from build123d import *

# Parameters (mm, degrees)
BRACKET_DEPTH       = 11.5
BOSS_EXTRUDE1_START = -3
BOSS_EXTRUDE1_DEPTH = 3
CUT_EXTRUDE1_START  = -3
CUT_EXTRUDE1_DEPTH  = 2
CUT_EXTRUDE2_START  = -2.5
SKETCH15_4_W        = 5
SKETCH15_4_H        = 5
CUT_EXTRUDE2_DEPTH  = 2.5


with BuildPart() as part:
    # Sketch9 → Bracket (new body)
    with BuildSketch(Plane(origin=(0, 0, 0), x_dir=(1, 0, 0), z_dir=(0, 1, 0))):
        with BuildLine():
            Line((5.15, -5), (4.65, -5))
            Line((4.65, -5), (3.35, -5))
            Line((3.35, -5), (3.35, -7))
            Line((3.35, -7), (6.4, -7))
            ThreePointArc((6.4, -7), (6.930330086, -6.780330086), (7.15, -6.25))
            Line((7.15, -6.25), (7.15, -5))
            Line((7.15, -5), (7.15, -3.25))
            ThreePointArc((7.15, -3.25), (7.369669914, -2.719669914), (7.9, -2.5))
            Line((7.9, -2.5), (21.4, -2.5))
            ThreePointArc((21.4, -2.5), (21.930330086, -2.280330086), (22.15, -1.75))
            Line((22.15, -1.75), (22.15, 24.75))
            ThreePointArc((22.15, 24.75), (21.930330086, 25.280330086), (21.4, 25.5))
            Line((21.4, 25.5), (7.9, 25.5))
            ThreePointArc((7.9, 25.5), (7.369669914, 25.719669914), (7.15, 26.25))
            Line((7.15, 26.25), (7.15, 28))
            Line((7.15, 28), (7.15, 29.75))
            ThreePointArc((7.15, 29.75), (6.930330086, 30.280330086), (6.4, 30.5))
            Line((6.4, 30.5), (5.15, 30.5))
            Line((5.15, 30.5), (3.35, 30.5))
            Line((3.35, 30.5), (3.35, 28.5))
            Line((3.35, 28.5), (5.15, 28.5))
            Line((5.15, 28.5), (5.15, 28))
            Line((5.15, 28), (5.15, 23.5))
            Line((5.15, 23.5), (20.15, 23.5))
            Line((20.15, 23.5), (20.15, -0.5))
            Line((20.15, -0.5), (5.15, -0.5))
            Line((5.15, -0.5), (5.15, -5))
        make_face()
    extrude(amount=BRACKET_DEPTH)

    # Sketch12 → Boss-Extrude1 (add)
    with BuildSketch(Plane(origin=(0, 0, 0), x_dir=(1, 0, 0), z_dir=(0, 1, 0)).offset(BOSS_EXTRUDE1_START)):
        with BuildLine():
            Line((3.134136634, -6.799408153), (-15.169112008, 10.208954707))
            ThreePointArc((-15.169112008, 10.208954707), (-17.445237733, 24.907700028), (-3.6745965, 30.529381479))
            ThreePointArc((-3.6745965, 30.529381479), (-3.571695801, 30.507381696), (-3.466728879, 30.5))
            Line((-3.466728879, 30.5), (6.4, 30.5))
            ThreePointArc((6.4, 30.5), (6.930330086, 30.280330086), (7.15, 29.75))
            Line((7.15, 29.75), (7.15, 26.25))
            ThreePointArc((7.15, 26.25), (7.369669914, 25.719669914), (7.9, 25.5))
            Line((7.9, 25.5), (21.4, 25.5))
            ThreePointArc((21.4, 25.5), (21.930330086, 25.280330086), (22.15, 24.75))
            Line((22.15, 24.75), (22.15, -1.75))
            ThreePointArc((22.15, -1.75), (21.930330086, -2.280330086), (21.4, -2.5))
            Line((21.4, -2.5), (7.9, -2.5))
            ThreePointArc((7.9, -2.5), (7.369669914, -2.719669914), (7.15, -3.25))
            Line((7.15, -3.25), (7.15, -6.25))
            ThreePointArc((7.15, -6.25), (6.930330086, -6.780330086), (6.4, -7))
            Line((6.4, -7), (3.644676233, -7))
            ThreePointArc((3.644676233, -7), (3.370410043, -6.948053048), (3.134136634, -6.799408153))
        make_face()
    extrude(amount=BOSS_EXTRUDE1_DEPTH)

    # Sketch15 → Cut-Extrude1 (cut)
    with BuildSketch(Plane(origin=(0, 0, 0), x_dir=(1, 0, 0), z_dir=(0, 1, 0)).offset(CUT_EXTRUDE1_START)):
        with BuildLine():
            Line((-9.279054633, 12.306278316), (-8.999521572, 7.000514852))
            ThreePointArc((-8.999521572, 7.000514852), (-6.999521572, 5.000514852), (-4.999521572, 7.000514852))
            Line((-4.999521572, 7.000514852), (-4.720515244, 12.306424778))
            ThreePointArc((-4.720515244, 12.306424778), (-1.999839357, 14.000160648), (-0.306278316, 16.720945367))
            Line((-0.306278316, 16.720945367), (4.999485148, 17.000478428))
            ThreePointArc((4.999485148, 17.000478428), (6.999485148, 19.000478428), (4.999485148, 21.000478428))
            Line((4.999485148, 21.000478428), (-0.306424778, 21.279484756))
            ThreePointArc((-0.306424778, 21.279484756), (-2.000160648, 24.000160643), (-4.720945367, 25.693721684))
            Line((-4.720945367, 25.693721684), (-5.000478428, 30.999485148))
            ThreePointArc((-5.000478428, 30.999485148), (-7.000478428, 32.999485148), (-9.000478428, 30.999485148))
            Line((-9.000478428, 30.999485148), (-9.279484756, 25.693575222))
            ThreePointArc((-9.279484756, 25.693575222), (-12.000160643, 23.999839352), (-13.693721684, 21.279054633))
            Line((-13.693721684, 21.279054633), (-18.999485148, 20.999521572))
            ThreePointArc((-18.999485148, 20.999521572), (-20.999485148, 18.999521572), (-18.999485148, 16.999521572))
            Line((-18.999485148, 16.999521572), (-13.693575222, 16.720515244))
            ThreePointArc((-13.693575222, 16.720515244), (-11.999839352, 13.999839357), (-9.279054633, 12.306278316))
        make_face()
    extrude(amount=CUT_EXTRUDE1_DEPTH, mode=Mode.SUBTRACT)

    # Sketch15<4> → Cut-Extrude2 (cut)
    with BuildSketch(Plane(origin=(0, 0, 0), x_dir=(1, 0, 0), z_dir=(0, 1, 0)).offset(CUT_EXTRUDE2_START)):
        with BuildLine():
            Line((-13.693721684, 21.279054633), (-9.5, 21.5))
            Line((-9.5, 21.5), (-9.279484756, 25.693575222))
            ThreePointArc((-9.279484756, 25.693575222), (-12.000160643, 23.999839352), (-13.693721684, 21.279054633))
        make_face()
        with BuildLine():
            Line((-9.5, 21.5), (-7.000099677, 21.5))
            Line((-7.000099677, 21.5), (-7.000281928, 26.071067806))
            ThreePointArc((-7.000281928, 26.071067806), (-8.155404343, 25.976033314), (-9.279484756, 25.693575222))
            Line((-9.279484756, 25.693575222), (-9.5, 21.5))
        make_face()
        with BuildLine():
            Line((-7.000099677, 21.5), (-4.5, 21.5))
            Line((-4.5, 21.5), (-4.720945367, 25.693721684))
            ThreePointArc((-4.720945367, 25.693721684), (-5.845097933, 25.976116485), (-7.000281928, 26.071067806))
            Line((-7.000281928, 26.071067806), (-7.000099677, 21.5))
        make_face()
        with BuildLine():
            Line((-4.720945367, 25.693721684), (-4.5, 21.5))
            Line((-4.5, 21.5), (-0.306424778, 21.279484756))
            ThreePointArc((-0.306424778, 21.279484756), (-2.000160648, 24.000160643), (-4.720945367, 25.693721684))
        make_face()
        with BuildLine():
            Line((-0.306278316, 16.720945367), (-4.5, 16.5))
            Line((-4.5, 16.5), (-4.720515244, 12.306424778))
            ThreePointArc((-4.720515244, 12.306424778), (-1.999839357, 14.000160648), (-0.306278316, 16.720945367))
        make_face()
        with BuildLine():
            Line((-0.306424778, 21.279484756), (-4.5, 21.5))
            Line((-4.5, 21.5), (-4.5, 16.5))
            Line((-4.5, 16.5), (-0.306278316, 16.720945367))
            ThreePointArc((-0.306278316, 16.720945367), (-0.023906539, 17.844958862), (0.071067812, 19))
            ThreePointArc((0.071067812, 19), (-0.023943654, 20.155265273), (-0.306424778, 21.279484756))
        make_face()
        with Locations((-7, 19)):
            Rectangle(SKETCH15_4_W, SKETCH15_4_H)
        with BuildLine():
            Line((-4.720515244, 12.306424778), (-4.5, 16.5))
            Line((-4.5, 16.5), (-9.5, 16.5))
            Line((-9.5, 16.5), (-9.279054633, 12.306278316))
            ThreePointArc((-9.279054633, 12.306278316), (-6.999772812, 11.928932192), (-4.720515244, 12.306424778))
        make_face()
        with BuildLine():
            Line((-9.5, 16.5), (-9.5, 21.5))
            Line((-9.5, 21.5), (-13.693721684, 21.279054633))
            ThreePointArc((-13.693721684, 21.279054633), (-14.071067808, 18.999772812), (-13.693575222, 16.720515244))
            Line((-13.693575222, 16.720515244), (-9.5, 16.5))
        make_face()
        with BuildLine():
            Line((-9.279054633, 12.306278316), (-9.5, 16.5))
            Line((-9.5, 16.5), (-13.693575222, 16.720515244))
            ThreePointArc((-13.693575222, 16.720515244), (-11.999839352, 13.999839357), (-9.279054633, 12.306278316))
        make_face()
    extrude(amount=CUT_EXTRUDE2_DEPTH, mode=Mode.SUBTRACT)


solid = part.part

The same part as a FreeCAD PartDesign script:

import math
import FreeCAD as App
import Part
import Sketcher

doc = App.newDocument("Part")
body = doc.addObject("PartDesign::Body", "Body")

sketch1 = body.newObject("Sketcher::SketchObject", "Sketch")
sketch1.AttachmentSupport = (doc.getObject("XZ_Plane"), [""])
sketch1.MapMode = "FlatFace"
sketch1.addGeometry([
    Part.LineSegment(App.Vector(5.15, 5, 0), App.Vector(3.35, 5, 0)),
    Part.LineSegment(App.Vector(3.35, 5, 0), App.Vector(3.35, 7, 0)),
    Part.LineSegment(App.Vector(3.35, 7, 0), App.Vector(6.4, 7, 0)),
    Part.ArcOfCircle(Part.Circle(App.Vector(6.4, 6.25, 0), App.Vector(0, 0, 1), 0.75), math.radians(0), math.radians(90)),
    Part.LineSegment(App.Vector(7.15, 6.25, 0), App.Vector(7.15, 3.25, 0)),
    Part.ArcOfCircle(Part.Circle(App.Vector(7.9, 3.25, 0), App.Vector(0, 0, 1), 0.75), math.radians(180), math.radians(270)),
    Part.LineSegment(App.Vector(7.9, 2.5, 0), App.Vector(21.4, 2.5, 0)),
    Part.ArcOfCircle(Part.Circle(App.Vector(21.4, 1.75, 0), App.Vector(0, 0, 1), 0.75), math.radians(0), math.radians(90)),
    Part.LineSegment(App.Vector(22.15, 1.75, 0), App.Vector(22.15, -24.75, 0)),
    Part.ArcOfCircle(Part.Circle(App.Vector(21.4, -24.75, 0), App.Vector(0, 0, 1), 0.75), math.radians(-90), math.radians(0)),
    Part.LineSegment(App.Vector(21.4, -25.5, 0), App.Vector(7.9, -25.5, 0)),
    Part.ArcOfCircle(Part.Circle(App.Vector(7.9, -26.25, 0), App.Vector(0, 0, 1), 0.75), math.radians(90), math.radians(180)),
    Part.LineSegment(App.Vector(7.15, -26.25, 0), App.Vector(7.15, -29.75, 0)),
    Part.ArcOfCircle(Part.Circle(App.Vector(6.4, -29.75, 0), App.Vector(0, 0, 1), 0.75), math.radians(-90), math.radians(0)),
    Part.LineSegment(App.Vector(6.4, -30.5, 0), App.Vector(3.35, -30.5, 0)),
    Part.LineSegment(App.Vector(3.35, -30.5, 0), App.Vector(3.35, -28.5, 0)),
    Part.LineSegment(App.Vector(3.35, -28.5, 0), App.Vector(5.15, -28.5, 0)),
    Part.LineSegment(App.Vector(5.15, -28.5, 0), App.Vector(5.15, -23.5, 0)),
    Part.LineSegment(App.Vector(5.15, -23.5, 0), App.Vector(20.15, -23.5, 0)),
    Part.LineSegment(App.Vector(20.15, -23.5, 0), App.Vector(20.15, 0.5, 0)),
    Part.LineSegment(App.Vector(20.15, 0.5, 0), App.Vector(5.15, 0.5, 0)),
    Part.LineSegment(App.Vector(5.15, 0.5, 0), App.Vector(5.15, 5, 0)),
], False)
sketch1.addConstraint([
    Sketcher.Constraint("Coincident", 0, 2, 1, 1),
    Sketcher.Constraint("Coincident", 1, 2, 2, 1),
    Sketcher.Constraint("Tangent", 2, 2, 3, 2),
    Sketcher.Constraint("Tangent", 3, 1, 4, 1),
    Sketcher.Constraint("Tangent", 4, 2, 5, 1),
    Sketcher.Constraint("Tangent", 5, 2, 6, 1),
    Sketcher.Constraint("Tangent", 6, 2, 7, 2),
    Sketcher.Constraint("Tangent", 7, 1, 8, 1),
    Sketcher.Constraint("Tangent", 8, 2, 9, 2),
    Sketcher.Constraint("Tangent", 9, 1, 10, 1),
    Sketcher.Constraint("Tangent", 10, 2, 11, 1),
    Sketcher.Constraint("Tangent", 11, 2, 12, 1),
    Sketcher.Constraint("Tangent", 12, 2, 13, 2),
    Sketcher.Constraint("Tangent", 13, 1, 14, 1),
    Sketcher.Constraint("Coincident", 14, 2, 15, 1),
    Sketcher.Constraint("Coincident", 15, 2, 16, 1),
    Sketcher.Constraint("Coincident", 16, 2, 17, 1),
    Sketcher.Constraint("Coincident", 17, 2, 18, 1),
    Sketcher.Constraint("Coincident", 18, 2, 19, 1),
    Sketcher.Constraint("Coincident", 19, 2, 20, 1),
    Sketcher.Constraint("Coincident", 20, 2, 21, 1),
    Sketcher.Constraint("Coincident", 21, 2, 0, 1),
    Sketcher.Constraint("Horizontal", 0),
    Sketcher.Constraint("Vertical", 1),
    Sketcher.Constraint("Horizontal", 2),
    Sketcher.Constraint("Vertical", 4),
    Sketcher.Constraint("Horizontal", 6),
    Sketcher.Constraint("Vertical", 8),
    Sketcher.Constraint("Horizontal", 10),
    Sketcher.Constraint("Vertical", 12),
    Sketcher.Constraint("Horizontal", 14),
    Sketcher.Constraint("Vertical", 15),
    Sketcher.Constraint("Horizontal", 16),
    Sketcher.Constraint("Vertical", 17),
    Sketcher.Constraint("Horizontal", 18),
    Sketcher.Constraint("Vertical", 19),
    Sketcher.Constraint("Horizontal", 20),
    Sketcher.Constraint("Vertical", 21),
    Sketcher.Constraint("Equal", 3, 5),
    Sketcher.Constraint("Equal", 5, 7),
    Sketcher.Constraint("Equal", 7, 9),
    Sketcher.Constraint("Equal", 9, 11),
    Sketcher.Constraint("Equal", 11, 13),
    Sketcher.Constraint("Vertical", 5, 3, 11, 3),
    Sketcher.Constraint("Vertical", 1, 2, 14, 2),
    Sketcher.Constraint("Vertical", 17, 2, 20, 2),
    Sketcher.Constraint("Equal", 1, 15),
    Sketcher.Constraint("DistanceX", 18, 1, 18, 2, 15.0),
    Sketcher.Constraint("DistanceY", 1, 1, 1, 2, 2.0),
    Sketcher.Constraint("DistanceY", 4, 2, 4, 1, 3.0),
    Sketcher.Constraint("DistanceY", 17, 1, 17, 2, 5.0),
    Sketcher.Constraint("DistanceY", 19, 1, 19, 2, 24.0),
    Sketcher.Constraint("Radius", 3, 0.75),
    Sketcher.Constraint("DistanceX", 0, 2, 0, 1, 1.8),
    Sketcher.Constraint("DistanceX", 6, 1, 6, 2, 13.5),
    Sketcher.Constraint("DistanceY", 8, 2, 8, 1, 26.5),
    Sketcher.Constraint("DistanceY", 12, 2, 12, 1, 3.5),
    Sketcher.Constraint("DistanceY", -1, 1, 0, 2, 5.0),
    Sketcher.Constraint("DistanceX", 16, 2, 12, 2, 2.0),
    Sketcher.Constraint("DistanceX", -1, 1, 3, 3, 6.4),
])
pad1 = body.newObject("PartDesign::Pad", "Pad")
pad1.Profile = sketch1
pad1.Length = 11.5
pad1.Reversed = True

sketch2 = body.newObject("Sketcher::SketchObject", "Sketch001")
sketch2.AttachmentSupport = (doc.getObject("XZ_Plane"), [""])
sketch2.MapMode = "FlatFace"
sketch2.AttachmentOffset = App.Placement(App.Vector(0, 0, 3), App.Rotation())
sketch2.addGeometry([
    Part.LineSegment(App.Vector(-15.169112, -10.208955, 0), App.Vector(3.134137, 6.799408, 0)),
    Part.ArcOfCircle(Part.Circle(App.Vector(3.644676, 6.25, 0), App.Vector(0, 0, 1), 0.75), math.radians(90), math.radians(132.89989)),
    Part.LineSegment(App.Vector(3.644676, 7, 0), App.Vector(6.4, 7, 0)),
    Part.ArcOfCircle(Part.Circle(App.Vector(6.4, 6.25, 0), App.Vector(0, 0, 1), 0.75), math.radians(0), math.radians(90)),
    Part.LineSegment(App.Vector(7.15, 6.25, 0), App.Vector(7.15, 3.25, 0)),
    Part.ArcOfCircle(Part.Circle(App.Vector(7.9, 3.25, 0), App.Vector(0, 0, 1), 0.75), math.radians(180), math.radians(270)),
    Part.LineSegment(App.Vector(7.9, 2.5, 0), App.Vector(21.4, 2.5, 0)),
    Part.ArcOfCircle(Part.Circle(App.Vector(21.4, 1.75, 0), App.Vector(0, 0, 1), 0.75), math.radians(0), math.radians(90)),
    Part.LineSegment(App.Vector(22.15, 1.75, 0), App.Vector(22.15, -24.75, 0)),
    Part.ArcOfCircle(Part.Circle(App.Vector(21.4, -24.75, 0), App.Vector(0, 0, 1), 0.75), math.radians(-90), math.radians(0)),
    Part.LineSegment(App.Vector(21.4, -25.5, 0), App.Vector(7.9, -25.5, 0)),
    Part.ArcOfCircle(Part.Circle(App.Vector(7.9, -26.25, 0), App.Vector(0, 0, 1), 0.75), math.radians(90), math.radians(180)),
    Part.LineSegment(App.Vector(7.15, -26.25, 0), App.Vector(7.15, -29.75, 0)),
    Part.ArcOfCircle(Part.Circle(App.Vector(6.4, -29.75, 0), App.Vector(0, 0, 1), 0.75), math.radians(-90), math.radians(0)),
    Part.LineSegment(App.Vector(6.4, -30.5, 0), App.Vector(-3.466729, -30.5, 0)),
    Part.ArcOfCircle(Part.Circle(App.Vector(-3.466729, -31.25, 0), App.Vector(0, 0, 1), 0.75), math.radians(90), math.radians(106.090588)),
    Part.ArcOfCircle(Part.Circle(App.Vector(-7.000478, -18.999485, 0), App.Vector(0, 0, 1), 12), math.radians(132.89989), math.radians(286.090588)),
], False)
sketch2.addConstraint([
    Sketcher.Constraint("Tangent", 0, 2, 1, 2),
    Sketcher.Constraint("Tangent", 1, 1, 2, 1),
    Sketcher.Constraint("Tangent", 2, 2, 3, 2),
    Sketcher.Constraint("Tangent", 3, 1, 4, 1),
    Sketcher.Constraint("Tangent", 4, 2, 5, 1),
    Sketcher.Constraint("Tangent", 5, 2, 6, 1),
    Sketcher.Constraint("Tangent", 6, 2, 7, 2),
    Sketcher.Constraint("Tangent", 7, 1, 8, 1),
    Sketcher.Constraint("Tangent", 8, 2, 9, 2),
    Sketcher.Constraint("Tangent", 9, 1, 10, 1),
    Sketcher.Constraint("Tangent", 10, 2, 11, 1),
    Sketcher.Constraint("Tangent", 11, 2, 12, 1),
    Sketcher.Constraint("Tangent", 12, 2, 13, 2),
    Sketcher.Constraint("Tangent", 13, 1, 14, 1),
    Sketcher.Constraint("Tangent", 14, 2, 15, 1),
    Sketcher.Constraint("Tangent", 15, 2, 16, 2),
    Sketcher.Constraint("Tangent", 16, 1, 0, 1),
    Sketcher.Constraint("Horizontal", 2),
    Sketcher.Constraint("Vertical", 4),
    Sketcher.Constraint("Horizontal", 6),
    Sketcher.Constraint("Vertical", 8),
    Sketcher.Constraint("Horizontal", 10),
    Sketcher.Constraint("Vertical", 12),
    Sketcher.Constraint("Horizontal", 14),
    Sketcher.Constraint("Equal", 1, 3),
    Sketcher.Constraint("Equal", 3, 5),
    Sketcher.Constraint("Equal", 5, 7),
    Sketcher.Constraint("Equal", 7, 9),
    Sketcher.Constraint("Equal", 9, 11),
    Sketcher.Constraint("Equal", 11, 13),
    Sketcher.Constraint("Equal", 13, 15),
    Sketcher.Constraint("Vertical", 5, 3, 11, 3),
    Sketcher.Constraint("Radius", 16, 12.0),
    Sketcher.Constraint("DistanceY", 4, 2, 4, 1, 3.0),
    Sketcher.Constraint("Radius", 1, 0.75),
    Sketcher.Constraint("DistanceX", 6, 1, 6, 2, 13.5),
    Sketcher.Constraint("DistanceY", 8, 2, 8, 1, 26.5),
    Sketcher.Constraint("DistanceY", 12, 2, 12, 1, 3.5),
    Sketcher.Constraint("DistanceY", -1, 1, 1, 1, 7.0),
    Sketcher.Constraint("DistanceX", -1, 1, 3, 3, 6.4),
    Sketcher.Constraint("DistanceX", 14, 2, 14, 1, 9.866729),
    Sketcher.Constraint("DistanceX", 2, 1, 2, 2, 2.755324),
    Sketcher.Constraint("DistanceX", 16, 3, -1, 1, 7.000478),
])
pad2 = body.newObject("PartDesign::Pad", "Pad001")
pad2.Profile = sketch2
pad2.Length = 3
pad2.Reversed = True

sketch3 = body.newObject("Sketcher::SketchObject", "Sketch002")
sketch3.AttachmentSupport = (doc.getObject("XZ_Plane"), [""])
sketch3.MapMode = "FlatFace"
sketch3.AttachmentOffset = App.Placement(App.Vector(0, 0, 3), App.Rotation())
sketch3.addGeometry([
    Part.LineSegment(App.Vector(-9.279055, -12.306278, 0), App.Vector(-8.999522, -7.000515, 0)),
    Part.ArcOfCircle(Part.Circle(App.Vector(-6.999522, -7.000515, 0), App.Vector(0, 0, 1), 2), math.radians(0), math.radians(180)),
    Part.LineSegment(App.Vector(-4.999522, -7.000515, 0), App.Vector(-4.720515, -12.306425, 0)),
    Part.ArcOfCircle(Part.Circle(App.Vector(-7, -19, 0), App.Vector(0, 0, 1), 7.071068), math.radians(18.8025), math.radians(71.193818)),
    Part.LineSegment(App.Vector(-0.306278, -16.720945, 0), App.Vector(4.999485, -17.000478, 0)),
    Part.ArcOfCircle(Part.Circle(App.Vector(4.999485, -19.000478, 0), App.Vector(0, 0, 1), 2), math.radians(-90), math.radians(90)),
    Part.LineSegment(App.Vector(4.999485, -21.000478, 0), App.Vector(-0.306425, -21.279485, 0)),
    Part.ArcOfCircle(Part.Circle(App.Vector(-7, -19, 0), App.Vector(0, 0, 1), 7.071068), math.radians(-71.1975), math.radians(-18.806182)),
    Part.LineSegment(App.Vector(-4.720945, -25.693722, 0), App.Vector(-5.000478, -30.999485, 0)),
    Part.ArcOfCircle(Part.Circle(App.Vector(-7.000478, -30.999485, 0), App.Vector(0, 0, 1), 2), math.radians(180), math.radians(360)),
    Part.LineSegment(App.Vector(-9.000478, -30.999485, 0), App.Vector(-9.279485, -25.693575, 0)),
    Part.ArcOfCircle(Part.Circle(App.Vector(-7, -19, 0), App.Vector(0, 0, 1), 7.071068), math.radians(-161.1975), math.radians(-108.806182)),
    Part.LineSegment(App.Vector(-13.693722, -21.279055, 0), App.Vector(-18.999485, -20.999522, 0)),
    Part.ArcOfCircle(Part.Circle(App.Vector(-18.999485, -18.999522, 0), App.Vector(0, 0, 1), 2), math.radians(90), math.radians(270)),
    Part.LineSegment(App.Vector(-18.999485, -16.999522, 0), App.Vector(-13.693575, -16.720515, 0)),
    Part.ArcOfCircle(Part.Circle(App.Vector(-7, -19, 0), App.Vector(0, 0, 1), 7.071068), math.radians(108.8025), math.radians(161.193818)),
], False)
sketch3.addConstraint([
    Sketcher.Constraint("Coincident", 0, 2, 1, 2),
    Sketcher.Constraint("Coincident", 1, 1, 2, 1),
    Sketcher.Constraint("Coincident", 2, 2, 3, 2),
    Sketcher.Constraint("Coincident", 3, 1, 4, 1),
    Sketcher.Constraint("Coincident", 4, 2, 5, 2),
    Sketcher.Constraint("Coincident", 5, 1, 6, 1),
    Sketcher.Constraint("Coincident", 6, 2, 7, 2),
    Sketcher.Constraint("Coincident", 7, 1, 8, 1),
    Sketcher.Constraint("Coincident", 8, 2, 9, 2),
    Sketcher.Constraint("Coincident", 9, 1, 10, 1),
    Sketcher.Constraint("Coincident", 10, 2, 11, 2),
    Sketcher.Constraint("Coincident", 11, 1, 12, 1),
    Sketcher.Constraint("Coincident", 12, 2, 13, 2),
    Sketcher.Constraint("Coincident", 13, 1, 14, 1),
    Sketcher.Constraint("Coincident", 14, 2, 15, 2),
    Sketcher.Constraint("Coincident", 15, 1, 0, 1),
    Sketcher.Constraint("Coincident", 7, 3, 3, 3),
    Sketcher.Constraint("Coincident", 11, 3, 3, 3),
    Sketcher.Constraint("Coincident", 15, 3, 3, 3),
    Sketcher.Constraint("Equal", 1, 5),
    Sketcher.Constraint("Equal", 3, 7),
    Sketcher.Constraint("Equal", 5, 9),
    Sketcher.Constraint("Equal", 7, 11),
    Sketcher.Constraint("Equal", 9, 13),
    Sketcher.Constraint("Equal", 11, 15),
    Sketcher.Constraint("Perpendicular", 0, 4),
    Sketcher.Constraint("Perpendicular", 2, 6),
    Sketcher.Constraint("Perpendicular", 4, 8),
    Sketcher.Constraint("Perpendicular", 6, 10),
    Sketcher.Constraint("Perpendicular", 8, 12),
    Sketcher.Constraint("Perpendicular", 10, 14),
    Sketcher.Constraint("Horizontal", 1, 3, 0, 2),
    Sketcher.Constraint("Horizontal", 0, 2, 1, 1),
    Sketcher.Constraint("Horizontal", 9, 3, 8, 2),
    Sketcher.Constraint("Horizontal", 8, 2, 9, 1),
    Sketcher.Constraint("Vertical", 5, 3, 4, 2),
    Sketcher.Constraint("Vertical", 4, 2, 5, 1),
    Sketcher.Constraint("Vertical", 13, 3, 12, 2),
    Sketcher.Constraint("Vertical", 12, 2, 13, 1),
    Sketcher.Constraint("Equal", 0, 4),
    Sketcher.Constraint("Equal", 2, 6),
    Sketcher.Constraint("Equal", 4, 8),
    Sketcher.Constraint("Equal", 6, 10),
    Sketcher.Constraint("Equal", 8, 12),
    Sketcher.Constraint("Equal", 10, 14),
    Sketcher.Constraint("Radius", 1, 2.0),
    Sketcher.Constraint("DistanceX", 3, 3, -1, 1, 7.0),
    Sketcher.Constraint("DistanceY", 3, 3, -1, 1, 19.0),
    Sketcher.Constraint("DistanceX", 2, 2, 4, 2, 9.72),
    Sketcher.Constraint("Radius", 3, 7.071068),
    Sketcher.Constraint("Distance", 0, 5.313122),
    Sketcher.Constraint("Distance", 2, 5.313241),
    Sketcher.Constraint("DistanceX", 1, 3, -1, 1, 6.999522),
])
pocket1 = body.newObject("PartDesign::Pocket", "Pocket")
pocket1.Profile = sketch3
pocket1.Length = 2

sketch4 = body.newObject("Sketcher::SketchObject", "Sketch003")
sketch4.AttachmentSupport = (doc.getObject("XZ_Plane"), [""])
sketch4.MapMode = "FlatFace"
sketch4.AttachmentOffset = App.Placement(App.Vector(0, 0, 2.5), App.Rotation())
sketch4.addGeometry([
    Part.ArcOfCircle(Part.Circle(App.Vector(-7, -19, 0), App.Vector(0, 0, 1), 7.071068), math.radians(71.193818), math.radians(108.8025)),
    Part.ArcOfCircle(Part.Circle(App.Vector(-7, -19, 0), App.Vector(0, 0, 1), 7.071068), math.radians(18.8025), math.radians(71.193818)),
    Part.ArcOfCircle(Part.Circle(App.Vector(-7, -19, 0), App.Vector(0, 0, 1), 7.071068), math.radians(0), math.radians(18.8025)),
    Part.ArcOfCircle(Part.Circle(App.Vector(-7, -19, 0), App.Vector(0, 0, 1), 7.071068), math.radians(-18.806181), math.radians(0)),
    Part.ArcOfCircle(Part.Circle(App.Vector(-7, -19, 0), App.Vector(0, 0, 1), 7.071068), math.radians(-71.1975), math.radians(-18.806182)),
    Part.ArcOfCircle(Part.Circle(App.Vector(-7, -19, 0), App.Vector(0, 0, 1), 7.071068), math.radians(-90.002284), math.radians(-71.1975)),
    Part.ArcOfCircle(Part.Circle(App.Vector(-7, -19, 0), App.Vector(0, 0, 1), 7.071068), math.radians(-108.806181), math.radians(-90.002284)),
    Part.ArcOfCircle(Part.Circle(App.Vector(-7, -19, 0), App.Vector(0, 0, 1), 7.071068), math.radians(-161.1975), math.radians(-108.806182)),
    Part.ArcOfCircle(Part.Circle(App.Vector(-7, -19, 0), App.Vector(0, 0, 1), 7.071068), math.radians(161.193818), math.radians(198.8025)),
    Part.ArcOfCircle(Part.Circle(App.Vector(-7, -19, 0), App.Vector(0, 0, 1), 7.071068), math.radians(108.8025), math.radians(161.193818)),
], False)
sketch4.addConstraint([
    Sketcher.Constraint("Tangent", 0, 1, 1, 2),
    Sketcher.Constraint("Tangent", 1, 1, 2, 2),
    Sketcher.Constraint("Tangent", 2, 1, 3, 2),
    Sketcher.Constraint("Tangent", 3, 1, 4, 2),
    Sketcher.Constraint("Tangent", 4, 1, 5, 2),
    Sketcher.Constraint("Tangent", 5, 1, 6, 2),
    Sketcher.Constraint("Tangent", 6, 1, 7, 2),
    Sketcher.Constraint("Tangent", 7, 1, 8, 2),
    Sketcher.Constraint("Tangent", 8, 1, 9, 2),
    Sketcher.Constraint("Tangent", 9, 1, 0, 2),
    Sketcher.Constraint("Coincident", 2, 3, 0, 3),
    Sketcher.Constraint("Coincident", 4, 3, 0, 3),
    Sketcher.Constraint("Coincident", 6, 3, 0, 3),
    Sketcher.Constraint("Equal", 6, 7),
    Sketcher.Constraint("Horizontal", 9, 3, 2, 1),
    Sketcher.Constraint("DistanceX", 0, 3, -1, 1, 7.0),
    Sketcher.Constraint("DistanceY", 0, 3, -1, 1, 19.0),
    Sketcher.Constraint("Radius", 0, 7.071068),
    Sketcher.Constraint("DistanceX", 1, 1, -1, 1, 0.306278),
    Sketcher.Constraint("DistanceY", 4, 1, -1, 1, 25.693722),
    Sketcher.Constraint("DistanceX", 5, 1, -1, 1, 7.000282),
    Sketcher.Constraint("DistanceX", 7, 1, -1, 1, 13.693722),
    Sketcher.Constraint("DistanceY", 9, 1, -1, 1, 12.306278),
    Sketcher.Constraint("DistanceY", 1, 1, 0, 1, 4.414521),
    Sketcher.Constraint("DistanceY", 3, 1, 1, 1, 4.558539),
    Sketcher.Constraint("DistanceX", 6, 1, 4, 1, 4.558539),
    Sketcher.Constraint("DistanceY", 7, 1, 8, 1, 4.558539),
])
pocket2 = body.newObject("PartDesign::Pocket", "Pocket001")
pocket2.Profile = sketch4
pocket2.Length = 2.5

doc.recompute()
